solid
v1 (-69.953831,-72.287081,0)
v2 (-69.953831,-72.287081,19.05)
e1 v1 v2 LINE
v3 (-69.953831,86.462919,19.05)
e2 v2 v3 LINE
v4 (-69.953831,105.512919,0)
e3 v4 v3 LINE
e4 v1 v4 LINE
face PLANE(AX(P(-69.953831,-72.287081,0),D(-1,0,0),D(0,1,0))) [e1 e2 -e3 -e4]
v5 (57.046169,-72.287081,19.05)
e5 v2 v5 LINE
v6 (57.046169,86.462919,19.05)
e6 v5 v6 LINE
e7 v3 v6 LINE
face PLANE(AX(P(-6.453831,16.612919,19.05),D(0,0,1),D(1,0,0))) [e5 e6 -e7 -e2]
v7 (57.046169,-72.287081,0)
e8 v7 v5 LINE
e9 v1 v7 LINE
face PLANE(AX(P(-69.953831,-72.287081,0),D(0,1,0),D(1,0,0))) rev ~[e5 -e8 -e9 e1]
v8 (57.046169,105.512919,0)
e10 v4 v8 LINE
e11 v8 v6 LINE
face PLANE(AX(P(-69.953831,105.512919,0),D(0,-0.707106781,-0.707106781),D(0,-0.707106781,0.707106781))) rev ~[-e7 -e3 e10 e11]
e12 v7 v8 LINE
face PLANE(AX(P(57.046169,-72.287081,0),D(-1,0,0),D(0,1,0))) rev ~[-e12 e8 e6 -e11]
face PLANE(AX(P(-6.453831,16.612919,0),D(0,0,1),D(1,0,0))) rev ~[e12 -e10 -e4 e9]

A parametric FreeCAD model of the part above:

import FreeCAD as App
import Part
import Sketcher

V = App.Vector
Q = App.Units.Quantity

doc = App.newDocument("Part")
body = doc.addObject("PartDesign::Body", "Body")

# Sketch on XY plane
sketch1 = doc.addObject("Sketcher::SketchObject", "Sketch")
body.addObject(sketch1)
sketch1.AttachmentSupport = (doc.XY_Plane, [""])
sketch1.MapMode = "FlatFace"
sketch1.addGeometry([
    Part.LineSegment(V(-70, 106, 0), V(-70, -72, 0)),
    Part.LineSegment(V(-70, -72, 0), V(57, -72, 0)),
    Part.LineSegment(V(57, -72, 0), V(57, 106, 0)),
    Part.LineSegment(V(57, 106, 0), V(-70, 106, 0)),
], False)
sketch1.addConstraint([
    Sketcher.Constraint("Coincident", 0, 2, 1, 1),
    Sketcher.Constraint("Coincident", 1, 2, 2, 1),
    Sketcher.Constraint("Coincident", 2, 2, 3, 1),
    Sketcher.Constraint("Coincident", 3, 2, 0, 1),
    Sketcher.Constraint("Vertical", 0),
    Sketcher.Constraint("Horizontal", 1),
    Sketcher.Constraint("Vertical", 2),
    Sketcher.Constraint("Horizontal", 3),
    Sketcher.Constraint("DistanceX", 1, 1, 1, 2, Q("5 in")),
    Sketcher.Constraint("DistanceY", 0, 2, 0, 1, Q("7 in")),
    Sketcher.Constraint("DistanceX", 0, 2, -1, 1, 69.953831),
    Sketcher.Constraint("DistanceY", 0, 2, -1, 1, 72.287081),
])
pad1 = doc.addObject("PartDesign::Pad", "Pad")
body.addObject(pad1)
pad1.Profile = sketch1
pad1.Length = Q("0.75 in")

# Sketch on YZ plane
sketch2 = doc.addObject("Sketcher::SketchObject", "Sketch001")
body.addObject(sketch2)
sketch2.AttachmentSupport = (doc.YZ_Plane, [""])
sketch2.MapMode = "FlatFace"
sketch2.AttachmentOffset = App.Placement(V(0, 0, -69.953831), App.Rotation())
sketch2.addGeometry([
    Part.LineSegment(V(106, 19, 0), V(106, 0, 0)),
    Part.LineSegment(V(106, 0, 0), V(86, 19, 0)),
    Part.LineSegment(V(86, 19, 0), V(106, 19, 0)),
], False)
sketch2.addConstraint([
    Sketcher.Constraint("Coincident", 0, 2, 1, 1),
    Sketcher.Constraint("Coincident", 1, 2, 2, 1),
    Sketcher.Constraint("Coincident", 2, 2, 0, 1),
    Sketcher.Constraint("Vertical", 0),
    Sketcher.Constraint("Horizontal", 2),
    Sketcher.Constraint("PointOnObject", 0, 2, -1),
    Sketcher.Constraint("Equal", 2, 0),
    Sketcher.Constraint("DistanceX", 2, 1, 2, 2, Q("0.75 in")),
    Sketcher.Constraint("DistanceX", -1, 1, 0, 2, 105.512919),
])
pocket1 = doc.addObject("PartDesign::Pocket", "Pocket")
body.addObject(pocket1)
pocket1.Profile = sketch2
pocket1.Length = Q("5 in")
pocket1.Reversed = True

doc.recompute()
